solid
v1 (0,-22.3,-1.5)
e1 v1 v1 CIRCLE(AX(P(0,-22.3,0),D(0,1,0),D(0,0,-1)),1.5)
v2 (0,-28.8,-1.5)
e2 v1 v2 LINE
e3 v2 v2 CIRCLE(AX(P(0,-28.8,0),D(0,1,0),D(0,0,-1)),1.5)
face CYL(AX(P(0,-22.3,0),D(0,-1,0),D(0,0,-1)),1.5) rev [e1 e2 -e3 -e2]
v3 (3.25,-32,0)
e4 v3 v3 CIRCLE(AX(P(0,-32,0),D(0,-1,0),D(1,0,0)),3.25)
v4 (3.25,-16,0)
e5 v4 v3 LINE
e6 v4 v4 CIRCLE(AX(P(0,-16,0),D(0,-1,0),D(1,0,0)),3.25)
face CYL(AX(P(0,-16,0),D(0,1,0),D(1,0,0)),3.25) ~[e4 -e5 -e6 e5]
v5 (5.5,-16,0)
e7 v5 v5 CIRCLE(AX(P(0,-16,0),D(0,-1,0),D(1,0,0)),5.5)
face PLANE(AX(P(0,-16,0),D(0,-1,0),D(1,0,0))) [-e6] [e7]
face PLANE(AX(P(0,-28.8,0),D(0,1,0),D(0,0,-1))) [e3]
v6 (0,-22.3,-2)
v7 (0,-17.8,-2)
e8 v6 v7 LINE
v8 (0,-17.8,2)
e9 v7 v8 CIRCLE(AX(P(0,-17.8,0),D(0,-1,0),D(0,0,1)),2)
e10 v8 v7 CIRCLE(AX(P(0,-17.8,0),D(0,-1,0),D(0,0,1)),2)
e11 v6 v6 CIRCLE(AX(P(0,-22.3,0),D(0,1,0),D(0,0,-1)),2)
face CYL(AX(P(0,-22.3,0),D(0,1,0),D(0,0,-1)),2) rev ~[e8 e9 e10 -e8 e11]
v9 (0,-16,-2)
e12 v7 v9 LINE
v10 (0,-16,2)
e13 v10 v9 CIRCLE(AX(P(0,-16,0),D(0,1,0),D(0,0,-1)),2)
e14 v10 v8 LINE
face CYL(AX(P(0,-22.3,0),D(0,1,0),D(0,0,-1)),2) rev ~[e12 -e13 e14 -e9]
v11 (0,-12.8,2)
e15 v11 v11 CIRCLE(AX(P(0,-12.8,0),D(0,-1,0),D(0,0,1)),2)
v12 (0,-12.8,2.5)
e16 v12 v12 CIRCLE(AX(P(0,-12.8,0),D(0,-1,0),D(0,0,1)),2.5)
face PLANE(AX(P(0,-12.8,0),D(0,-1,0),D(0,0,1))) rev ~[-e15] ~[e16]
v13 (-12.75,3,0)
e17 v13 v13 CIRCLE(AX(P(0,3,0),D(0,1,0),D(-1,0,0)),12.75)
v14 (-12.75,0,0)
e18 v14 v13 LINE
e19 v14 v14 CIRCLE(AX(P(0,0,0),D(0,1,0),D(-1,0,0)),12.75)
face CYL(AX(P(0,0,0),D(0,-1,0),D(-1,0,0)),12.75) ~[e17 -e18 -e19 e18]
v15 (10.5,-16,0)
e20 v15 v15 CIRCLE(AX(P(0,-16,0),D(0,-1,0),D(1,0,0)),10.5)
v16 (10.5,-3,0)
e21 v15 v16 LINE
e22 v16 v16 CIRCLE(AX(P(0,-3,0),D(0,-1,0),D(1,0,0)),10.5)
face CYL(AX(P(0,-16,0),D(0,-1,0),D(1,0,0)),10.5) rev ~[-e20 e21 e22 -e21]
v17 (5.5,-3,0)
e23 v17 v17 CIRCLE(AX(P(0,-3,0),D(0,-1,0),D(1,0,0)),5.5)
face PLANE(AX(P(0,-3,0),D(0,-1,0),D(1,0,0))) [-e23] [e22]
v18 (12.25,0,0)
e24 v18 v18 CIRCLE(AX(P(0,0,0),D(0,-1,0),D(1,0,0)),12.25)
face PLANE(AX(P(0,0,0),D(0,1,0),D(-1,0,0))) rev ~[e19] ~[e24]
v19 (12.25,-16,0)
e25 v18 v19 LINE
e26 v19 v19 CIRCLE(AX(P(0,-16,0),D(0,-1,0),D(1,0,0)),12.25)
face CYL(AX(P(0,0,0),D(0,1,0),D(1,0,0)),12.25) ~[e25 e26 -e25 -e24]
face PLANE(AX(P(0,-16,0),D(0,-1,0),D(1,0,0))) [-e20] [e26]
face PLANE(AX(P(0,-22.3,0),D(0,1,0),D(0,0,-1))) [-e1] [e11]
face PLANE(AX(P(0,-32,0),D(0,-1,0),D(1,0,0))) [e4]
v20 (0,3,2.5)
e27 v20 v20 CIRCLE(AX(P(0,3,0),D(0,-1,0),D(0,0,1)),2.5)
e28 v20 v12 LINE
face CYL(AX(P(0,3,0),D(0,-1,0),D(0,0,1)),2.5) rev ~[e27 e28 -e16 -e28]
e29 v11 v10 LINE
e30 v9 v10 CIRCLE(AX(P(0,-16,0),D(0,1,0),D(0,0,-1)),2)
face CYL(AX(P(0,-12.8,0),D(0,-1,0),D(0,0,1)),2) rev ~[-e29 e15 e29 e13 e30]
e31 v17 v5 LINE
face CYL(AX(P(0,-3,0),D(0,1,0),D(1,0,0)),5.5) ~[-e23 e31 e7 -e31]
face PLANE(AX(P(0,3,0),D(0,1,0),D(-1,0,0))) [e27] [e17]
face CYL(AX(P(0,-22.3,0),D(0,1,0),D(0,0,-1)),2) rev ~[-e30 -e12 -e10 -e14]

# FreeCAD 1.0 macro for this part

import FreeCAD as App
import Part
import Sketcher

V = App.Vector


def add_polygon(sketch, points):
    """Adds a closed chain of lines whose ends are joined by coincident constraints."""
    first, n = sketch.GeometryCount, len(points)
    for a, b in zip(points, points[1:] + points[:1]):
        sketch.addGeometry(Part.LineSegment(App.Vector(*a, 0), App.Vector(*b, 0)), False)
    for i in range(n):
        sketch.addConstraint(Sketcher.Constraint("Coincident", first + i, 2, first + (i + 1) % n, 1))

doc = App.newDocument("Part")
body = doc.addObject("PartDesign::Body", "Body")

# Sketch on XZ plane
sketch1 = body.newObject("Sketcher::SketchObject", "Sketch")
sketch1.AttachmentSupport = (doc.getObject("XZ_Plane"), [""])
sketch1.MapMode = "FlatFace"
sketch1.addGeometry(Part.Circle(V(0, 0, 0), V(0, 0, 1), 12.75), False)
sketch1.addConstraint([
    Sketcher.Constraint("Coincident", 0, 3, -1, 1),
    Sketcher.Constraint("Diameter", 0, 25.5),
])
pad1 = body.newObject("PartDesign::Pad", "Pad")
pad1.Profile = sketch1
pad1.Length = 3
pad1.Reversed = True

# Sketch on XZ plane
sketch2 = body.newObject("Sketcher::SketchObject", "Sketch001")
sketch2.AttachmentSupport = (doc.getObject("XZ_Plane"), [""])
sketch2.MapMode = "FlatFace"
sketch2.addGeometry(Part.Circle(V(0, 0, 0), V(0, 0, 1), 12.25), False)
sketch2.addConstraint([
    Sketcher.Constraint("Coincident", 0, 3, -1, 1),
    Sketcher.Constraint("Diameter", 0, 24.5),
])
pad2 = body.newObject("PartDesign::Pad", "Pad001")
pad2.Profile = sketch2
pad2.Length = 16

# Sketch on XZ plane
sketch3 = body.newObject("Sketcher::SketchObject", "Sketch002")
sketch3.AttachmentSupport = (doc.getObject("XZ_Plane"), [""])
sketch3.MapMode = "FlatFace"
sketch3.AttachmentOffset = App.Placement(V(0, 0, 16), App.Rotation())
sketch3.addGeometry(Part.Circle(V(0, 0, 0), V(0, 0, 1), 10.5), False)
sketch3.addConstraint([
    Sketcher.Constraint("Coincident", 0, 3, -1, 1),
    Sketcher.Constraint("Diameter", 0, 21.0),
])
pocket1 = body.newObject("PartDesign::Pocket", "Pocket")
pocket1.Profile = sketch3
pocket1.Length = 13

# Sketch on XZ plane
sketch4 = body.newObject("Sketcher::SketchObject", "Sketch003")
sketch4.AttachmentSupport = (doc.getObject("XZ_Plane"), [""])
sketch4.MapMode = "FlatFace"
sketch4.AttachmentOffset = App.Placement(V(0, 0, 3), App.Rotation())
sketch4.addGeometry(Part.Circle(V(0, 0, 0), V(0, 0, 1), 5.5), False)
sketch4.addConstraint([
    Sketcher.Constraint("Coincident", 0, 3, -1, 1),
    Sketcher.Constraint("Diameter", 0, 11.0),
])
pad3 = body.newObject("PartDesign::Pad", "Pad002")
pad3.Profile = sketch4
pad3.Length = 13

# Sketch on XZ plane
sketch5 = body.newObject("Sketcher::SketchObject", "Sketch004")
sketch5.AttachmentSupport = (doc.getObject("XZ_Plane"), [""])
sketch5.MapMode = "FlatFace"
sketch5.AttachmentOffset = App.Placement(V(0, 0, 16), App.Rotation())
sketch5.addGeometry(Part.Circle(V(0, 0, 0), V(0, 0, 1), 3.25), False)
sketch5.addConstraint([
    Sketcher.Constraint("Coincident", 0, 3, -1, 1),
    Sketcher.Constraint("Diameter", 0, 6.5),
])
pad4 = body.newObject("PartDesign::Pad", "Pad003")
pad4.Profile = sketch5
pad4.Length = 16

# Sketch on XZ plane
sketch6 = body.newObject("Sketcher::SketchObject", "Sketch005")
sketch6.AttachmentSupport = (doc.getObject("XZ_Plane"), [""])
sketch6.MapMode = "FlatFace"
sketch6.AttachmentOffset = App.Placement(V(0, 0, -3), App.Rotation())
sketch6.addGeometry(Part.Circle(V(0, 0, 0), V(0, 0, 1), 2.5), False)
sketch6.addConstraint([
    Sketcher.Constraint("Coincident", 0, 3, -1, 1),
    Sketcher.Constraint("Diameter", 0, 5.0),
])
doc.recompute()
hole = body.newObject("PartDesign::Hole", "Hole")
hole.Profile = sketch6
hole.ThreadType = "None"
hole.Diameter = 5
hole.DepthType = "Dimension"
hole.Depth = 15.8
hole.DrillPoint = "Flat"
hole.Reversed = True

# Sketch on YZ plane
sketch7 = body.newObject("Sketcher::SketchObject", "Sketch006")
sketch7.AttachmentSupport = (doc.getObject("YZ_Plane"), [""])
sketch7.MapMode = "FlatFace"
add_polygon(sketch7, [(-22.3, -2), (-16, -2), (-16, 0), (-28.8, 0), (-28.8, -1.5), (-22.3, -1.5)])  # lines 0-5
sketch7.addConstraint([
    Sketcher.Constraint("Horizontal", 0),
    Sketcher.Constraint("Vertical", 1),
    Sketcher.Constraint("Horizontal", 2),
    Sketcher.Constraint("Vertical", 3),
    Sketcher.Constraint("Horizontal", 4),
    Sketcher.Constraint("Vertical", 5),
    Sketcher.Constraint("PointOnObject", 1, 2, -1),
    Sketcher.Constraint("DistanceX", 4, 1, 4, 2, 6.5),
    Sketcher.Constraint("DistanceY", 1, 1, 1, 2, 2.0),
    Sketcher.Constraint("DistanceX", 0, 1, 0, 2, 6.3),
    Sketcher.Constraint("DistanceY", 3, 2, 3, 1, 1.5),
    Sketcher.Constraint("DistanceX", 0, 2, -1, 1, 16.0),
])
groove = body.newObject("PartDesign::Groove", "Groove")
groove.Profile = sketch7
groove.ReferenceAxis = (sketch7, ["H_Axis"])
groove.Angle = 360

# Sketch on XZ plane
sketch8 = body.newObject("Sketcher::SketchObject", "Sketch007")
sketch8.AttachmentSupport = (doc.getObject("XZ_Plane"), [""])
sketch8.MapMode = "FlatFace"
sketch8.AttachmentOffset = App.Placement(V(0, 0, 12.8), App.Rotation())
sketch8.addGeometry(Part.Circle(V(0, 0, 0), V(0, 0, 1), 2), False)
sketch8.addConstraint([
    Sketcher.Constraint("Coincident", 0, 3, -1, 1),
    Sketcher.Constraint("Diameter", 0, 4.0),
])
doc.recompute()
hole2 = body.newObject("PartDesign::Hole", "Hole001")
hole2.Profile = sketch8
hole2.ThreadType = "None"
hole2.Diameter = 4
hole2.DepthType = "Dimension"
hole2.Depth = 5
hole2.DrillPoint = "Flat"
hole2.Reversed = True

doc.recompute()
